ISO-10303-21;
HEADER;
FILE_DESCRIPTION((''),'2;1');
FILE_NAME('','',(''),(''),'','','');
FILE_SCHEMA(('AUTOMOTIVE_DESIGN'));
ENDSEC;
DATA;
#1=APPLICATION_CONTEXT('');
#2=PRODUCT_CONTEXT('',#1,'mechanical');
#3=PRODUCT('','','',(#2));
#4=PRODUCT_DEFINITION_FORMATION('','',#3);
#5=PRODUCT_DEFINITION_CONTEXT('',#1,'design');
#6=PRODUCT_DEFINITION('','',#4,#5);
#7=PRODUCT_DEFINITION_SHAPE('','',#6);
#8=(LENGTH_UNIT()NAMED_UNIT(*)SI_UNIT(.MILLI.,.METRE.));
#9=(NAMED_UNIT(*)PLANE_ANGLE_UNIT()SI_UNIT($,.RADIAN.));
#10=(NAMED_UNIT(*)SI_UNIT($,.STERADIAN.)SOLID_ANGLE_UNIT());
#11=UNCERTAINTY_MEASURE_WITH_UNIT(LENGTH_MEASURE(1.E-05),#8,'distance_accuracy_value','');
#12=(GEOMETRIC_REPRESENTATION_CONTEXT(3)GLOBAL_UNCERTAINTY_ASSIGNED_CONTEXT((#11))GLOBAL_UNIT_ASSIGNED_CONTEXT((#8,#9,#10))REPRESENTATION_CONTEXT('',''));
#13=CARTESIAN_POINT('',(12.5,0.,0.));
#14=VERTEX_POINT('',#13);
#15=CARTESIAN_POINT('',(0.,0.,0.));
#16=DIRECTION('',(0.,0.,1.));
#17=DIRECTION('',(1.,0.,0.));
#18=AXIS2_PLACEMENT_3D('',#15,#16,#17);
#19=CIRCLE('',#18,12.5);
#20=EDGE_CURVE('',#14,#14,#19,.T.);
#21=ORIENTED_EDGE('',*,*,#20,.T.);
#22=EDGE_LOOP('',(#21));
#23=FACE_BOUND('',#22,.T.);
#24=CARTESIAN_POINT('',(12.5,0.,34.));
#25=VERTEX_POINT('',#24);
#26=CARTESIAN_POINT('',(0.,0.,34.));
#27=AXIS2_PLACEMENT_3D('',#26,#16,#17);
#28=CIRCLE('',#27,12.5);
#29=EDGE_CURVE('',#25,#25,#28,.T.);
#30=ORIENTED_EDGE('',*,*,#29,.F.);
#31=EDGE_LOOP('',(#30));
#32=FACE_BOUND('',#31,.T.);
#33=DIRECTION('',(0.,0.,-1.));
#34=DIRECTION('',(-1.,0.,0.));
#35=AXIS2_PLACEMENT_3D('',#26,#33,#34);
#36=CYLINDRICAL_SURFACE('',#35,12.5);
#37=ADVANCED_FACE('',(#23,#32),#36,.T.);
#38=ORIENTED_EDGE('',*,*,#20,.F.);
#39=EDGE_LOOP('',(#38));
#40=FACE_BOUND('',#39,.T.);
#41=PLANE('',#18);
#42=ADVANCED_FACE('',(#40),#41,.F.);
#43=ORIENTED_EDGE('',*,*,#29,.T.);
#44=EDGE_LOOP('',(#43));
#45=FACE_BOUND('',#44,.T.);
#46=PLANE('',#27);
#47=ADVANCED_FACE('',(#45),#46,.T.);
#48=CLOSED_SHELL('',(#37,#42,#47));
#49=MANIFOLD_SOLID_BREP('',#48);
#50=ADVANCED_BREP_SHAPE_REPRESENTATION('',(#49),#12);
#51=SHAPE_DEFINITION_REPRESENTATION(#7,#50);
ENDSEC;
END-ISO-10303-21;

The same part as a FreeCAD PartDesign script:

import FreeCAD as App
import Part
import Sketcher
from FreeCAD import Vector
Q = App.Units.Quantity

doc = App.newDocument("Part")
body = doc.addObject("PartDesign::Body", "Body")

# Sketch on XY plane
sketch1 = doc.addObject("Sketcher::SketchObject", "Sketch")
body.addObject(sketch1)
sketch1.AttachmentSupport = (doc.XY_Plane, [""])
sketch1.MapMode = "FlatFace"
sketch1.addGeometry(Part.Circle(Vector(0, 0, 0), Vector(0, 0, 1), 12), False)
sketch1.addConstraint([
    Sketcher.Constraint("Coincident", 0, 3, -1, 1),
    Sketcher.Constraint("Diameter", 0, Q("25 mm")),
])
pad1 = doc.addObject("PartDesign::Pad", "Pad")
body.addObject(pad1)
pad1.Profile = sketch1
pad1.Length = 34

doc.recompute()
